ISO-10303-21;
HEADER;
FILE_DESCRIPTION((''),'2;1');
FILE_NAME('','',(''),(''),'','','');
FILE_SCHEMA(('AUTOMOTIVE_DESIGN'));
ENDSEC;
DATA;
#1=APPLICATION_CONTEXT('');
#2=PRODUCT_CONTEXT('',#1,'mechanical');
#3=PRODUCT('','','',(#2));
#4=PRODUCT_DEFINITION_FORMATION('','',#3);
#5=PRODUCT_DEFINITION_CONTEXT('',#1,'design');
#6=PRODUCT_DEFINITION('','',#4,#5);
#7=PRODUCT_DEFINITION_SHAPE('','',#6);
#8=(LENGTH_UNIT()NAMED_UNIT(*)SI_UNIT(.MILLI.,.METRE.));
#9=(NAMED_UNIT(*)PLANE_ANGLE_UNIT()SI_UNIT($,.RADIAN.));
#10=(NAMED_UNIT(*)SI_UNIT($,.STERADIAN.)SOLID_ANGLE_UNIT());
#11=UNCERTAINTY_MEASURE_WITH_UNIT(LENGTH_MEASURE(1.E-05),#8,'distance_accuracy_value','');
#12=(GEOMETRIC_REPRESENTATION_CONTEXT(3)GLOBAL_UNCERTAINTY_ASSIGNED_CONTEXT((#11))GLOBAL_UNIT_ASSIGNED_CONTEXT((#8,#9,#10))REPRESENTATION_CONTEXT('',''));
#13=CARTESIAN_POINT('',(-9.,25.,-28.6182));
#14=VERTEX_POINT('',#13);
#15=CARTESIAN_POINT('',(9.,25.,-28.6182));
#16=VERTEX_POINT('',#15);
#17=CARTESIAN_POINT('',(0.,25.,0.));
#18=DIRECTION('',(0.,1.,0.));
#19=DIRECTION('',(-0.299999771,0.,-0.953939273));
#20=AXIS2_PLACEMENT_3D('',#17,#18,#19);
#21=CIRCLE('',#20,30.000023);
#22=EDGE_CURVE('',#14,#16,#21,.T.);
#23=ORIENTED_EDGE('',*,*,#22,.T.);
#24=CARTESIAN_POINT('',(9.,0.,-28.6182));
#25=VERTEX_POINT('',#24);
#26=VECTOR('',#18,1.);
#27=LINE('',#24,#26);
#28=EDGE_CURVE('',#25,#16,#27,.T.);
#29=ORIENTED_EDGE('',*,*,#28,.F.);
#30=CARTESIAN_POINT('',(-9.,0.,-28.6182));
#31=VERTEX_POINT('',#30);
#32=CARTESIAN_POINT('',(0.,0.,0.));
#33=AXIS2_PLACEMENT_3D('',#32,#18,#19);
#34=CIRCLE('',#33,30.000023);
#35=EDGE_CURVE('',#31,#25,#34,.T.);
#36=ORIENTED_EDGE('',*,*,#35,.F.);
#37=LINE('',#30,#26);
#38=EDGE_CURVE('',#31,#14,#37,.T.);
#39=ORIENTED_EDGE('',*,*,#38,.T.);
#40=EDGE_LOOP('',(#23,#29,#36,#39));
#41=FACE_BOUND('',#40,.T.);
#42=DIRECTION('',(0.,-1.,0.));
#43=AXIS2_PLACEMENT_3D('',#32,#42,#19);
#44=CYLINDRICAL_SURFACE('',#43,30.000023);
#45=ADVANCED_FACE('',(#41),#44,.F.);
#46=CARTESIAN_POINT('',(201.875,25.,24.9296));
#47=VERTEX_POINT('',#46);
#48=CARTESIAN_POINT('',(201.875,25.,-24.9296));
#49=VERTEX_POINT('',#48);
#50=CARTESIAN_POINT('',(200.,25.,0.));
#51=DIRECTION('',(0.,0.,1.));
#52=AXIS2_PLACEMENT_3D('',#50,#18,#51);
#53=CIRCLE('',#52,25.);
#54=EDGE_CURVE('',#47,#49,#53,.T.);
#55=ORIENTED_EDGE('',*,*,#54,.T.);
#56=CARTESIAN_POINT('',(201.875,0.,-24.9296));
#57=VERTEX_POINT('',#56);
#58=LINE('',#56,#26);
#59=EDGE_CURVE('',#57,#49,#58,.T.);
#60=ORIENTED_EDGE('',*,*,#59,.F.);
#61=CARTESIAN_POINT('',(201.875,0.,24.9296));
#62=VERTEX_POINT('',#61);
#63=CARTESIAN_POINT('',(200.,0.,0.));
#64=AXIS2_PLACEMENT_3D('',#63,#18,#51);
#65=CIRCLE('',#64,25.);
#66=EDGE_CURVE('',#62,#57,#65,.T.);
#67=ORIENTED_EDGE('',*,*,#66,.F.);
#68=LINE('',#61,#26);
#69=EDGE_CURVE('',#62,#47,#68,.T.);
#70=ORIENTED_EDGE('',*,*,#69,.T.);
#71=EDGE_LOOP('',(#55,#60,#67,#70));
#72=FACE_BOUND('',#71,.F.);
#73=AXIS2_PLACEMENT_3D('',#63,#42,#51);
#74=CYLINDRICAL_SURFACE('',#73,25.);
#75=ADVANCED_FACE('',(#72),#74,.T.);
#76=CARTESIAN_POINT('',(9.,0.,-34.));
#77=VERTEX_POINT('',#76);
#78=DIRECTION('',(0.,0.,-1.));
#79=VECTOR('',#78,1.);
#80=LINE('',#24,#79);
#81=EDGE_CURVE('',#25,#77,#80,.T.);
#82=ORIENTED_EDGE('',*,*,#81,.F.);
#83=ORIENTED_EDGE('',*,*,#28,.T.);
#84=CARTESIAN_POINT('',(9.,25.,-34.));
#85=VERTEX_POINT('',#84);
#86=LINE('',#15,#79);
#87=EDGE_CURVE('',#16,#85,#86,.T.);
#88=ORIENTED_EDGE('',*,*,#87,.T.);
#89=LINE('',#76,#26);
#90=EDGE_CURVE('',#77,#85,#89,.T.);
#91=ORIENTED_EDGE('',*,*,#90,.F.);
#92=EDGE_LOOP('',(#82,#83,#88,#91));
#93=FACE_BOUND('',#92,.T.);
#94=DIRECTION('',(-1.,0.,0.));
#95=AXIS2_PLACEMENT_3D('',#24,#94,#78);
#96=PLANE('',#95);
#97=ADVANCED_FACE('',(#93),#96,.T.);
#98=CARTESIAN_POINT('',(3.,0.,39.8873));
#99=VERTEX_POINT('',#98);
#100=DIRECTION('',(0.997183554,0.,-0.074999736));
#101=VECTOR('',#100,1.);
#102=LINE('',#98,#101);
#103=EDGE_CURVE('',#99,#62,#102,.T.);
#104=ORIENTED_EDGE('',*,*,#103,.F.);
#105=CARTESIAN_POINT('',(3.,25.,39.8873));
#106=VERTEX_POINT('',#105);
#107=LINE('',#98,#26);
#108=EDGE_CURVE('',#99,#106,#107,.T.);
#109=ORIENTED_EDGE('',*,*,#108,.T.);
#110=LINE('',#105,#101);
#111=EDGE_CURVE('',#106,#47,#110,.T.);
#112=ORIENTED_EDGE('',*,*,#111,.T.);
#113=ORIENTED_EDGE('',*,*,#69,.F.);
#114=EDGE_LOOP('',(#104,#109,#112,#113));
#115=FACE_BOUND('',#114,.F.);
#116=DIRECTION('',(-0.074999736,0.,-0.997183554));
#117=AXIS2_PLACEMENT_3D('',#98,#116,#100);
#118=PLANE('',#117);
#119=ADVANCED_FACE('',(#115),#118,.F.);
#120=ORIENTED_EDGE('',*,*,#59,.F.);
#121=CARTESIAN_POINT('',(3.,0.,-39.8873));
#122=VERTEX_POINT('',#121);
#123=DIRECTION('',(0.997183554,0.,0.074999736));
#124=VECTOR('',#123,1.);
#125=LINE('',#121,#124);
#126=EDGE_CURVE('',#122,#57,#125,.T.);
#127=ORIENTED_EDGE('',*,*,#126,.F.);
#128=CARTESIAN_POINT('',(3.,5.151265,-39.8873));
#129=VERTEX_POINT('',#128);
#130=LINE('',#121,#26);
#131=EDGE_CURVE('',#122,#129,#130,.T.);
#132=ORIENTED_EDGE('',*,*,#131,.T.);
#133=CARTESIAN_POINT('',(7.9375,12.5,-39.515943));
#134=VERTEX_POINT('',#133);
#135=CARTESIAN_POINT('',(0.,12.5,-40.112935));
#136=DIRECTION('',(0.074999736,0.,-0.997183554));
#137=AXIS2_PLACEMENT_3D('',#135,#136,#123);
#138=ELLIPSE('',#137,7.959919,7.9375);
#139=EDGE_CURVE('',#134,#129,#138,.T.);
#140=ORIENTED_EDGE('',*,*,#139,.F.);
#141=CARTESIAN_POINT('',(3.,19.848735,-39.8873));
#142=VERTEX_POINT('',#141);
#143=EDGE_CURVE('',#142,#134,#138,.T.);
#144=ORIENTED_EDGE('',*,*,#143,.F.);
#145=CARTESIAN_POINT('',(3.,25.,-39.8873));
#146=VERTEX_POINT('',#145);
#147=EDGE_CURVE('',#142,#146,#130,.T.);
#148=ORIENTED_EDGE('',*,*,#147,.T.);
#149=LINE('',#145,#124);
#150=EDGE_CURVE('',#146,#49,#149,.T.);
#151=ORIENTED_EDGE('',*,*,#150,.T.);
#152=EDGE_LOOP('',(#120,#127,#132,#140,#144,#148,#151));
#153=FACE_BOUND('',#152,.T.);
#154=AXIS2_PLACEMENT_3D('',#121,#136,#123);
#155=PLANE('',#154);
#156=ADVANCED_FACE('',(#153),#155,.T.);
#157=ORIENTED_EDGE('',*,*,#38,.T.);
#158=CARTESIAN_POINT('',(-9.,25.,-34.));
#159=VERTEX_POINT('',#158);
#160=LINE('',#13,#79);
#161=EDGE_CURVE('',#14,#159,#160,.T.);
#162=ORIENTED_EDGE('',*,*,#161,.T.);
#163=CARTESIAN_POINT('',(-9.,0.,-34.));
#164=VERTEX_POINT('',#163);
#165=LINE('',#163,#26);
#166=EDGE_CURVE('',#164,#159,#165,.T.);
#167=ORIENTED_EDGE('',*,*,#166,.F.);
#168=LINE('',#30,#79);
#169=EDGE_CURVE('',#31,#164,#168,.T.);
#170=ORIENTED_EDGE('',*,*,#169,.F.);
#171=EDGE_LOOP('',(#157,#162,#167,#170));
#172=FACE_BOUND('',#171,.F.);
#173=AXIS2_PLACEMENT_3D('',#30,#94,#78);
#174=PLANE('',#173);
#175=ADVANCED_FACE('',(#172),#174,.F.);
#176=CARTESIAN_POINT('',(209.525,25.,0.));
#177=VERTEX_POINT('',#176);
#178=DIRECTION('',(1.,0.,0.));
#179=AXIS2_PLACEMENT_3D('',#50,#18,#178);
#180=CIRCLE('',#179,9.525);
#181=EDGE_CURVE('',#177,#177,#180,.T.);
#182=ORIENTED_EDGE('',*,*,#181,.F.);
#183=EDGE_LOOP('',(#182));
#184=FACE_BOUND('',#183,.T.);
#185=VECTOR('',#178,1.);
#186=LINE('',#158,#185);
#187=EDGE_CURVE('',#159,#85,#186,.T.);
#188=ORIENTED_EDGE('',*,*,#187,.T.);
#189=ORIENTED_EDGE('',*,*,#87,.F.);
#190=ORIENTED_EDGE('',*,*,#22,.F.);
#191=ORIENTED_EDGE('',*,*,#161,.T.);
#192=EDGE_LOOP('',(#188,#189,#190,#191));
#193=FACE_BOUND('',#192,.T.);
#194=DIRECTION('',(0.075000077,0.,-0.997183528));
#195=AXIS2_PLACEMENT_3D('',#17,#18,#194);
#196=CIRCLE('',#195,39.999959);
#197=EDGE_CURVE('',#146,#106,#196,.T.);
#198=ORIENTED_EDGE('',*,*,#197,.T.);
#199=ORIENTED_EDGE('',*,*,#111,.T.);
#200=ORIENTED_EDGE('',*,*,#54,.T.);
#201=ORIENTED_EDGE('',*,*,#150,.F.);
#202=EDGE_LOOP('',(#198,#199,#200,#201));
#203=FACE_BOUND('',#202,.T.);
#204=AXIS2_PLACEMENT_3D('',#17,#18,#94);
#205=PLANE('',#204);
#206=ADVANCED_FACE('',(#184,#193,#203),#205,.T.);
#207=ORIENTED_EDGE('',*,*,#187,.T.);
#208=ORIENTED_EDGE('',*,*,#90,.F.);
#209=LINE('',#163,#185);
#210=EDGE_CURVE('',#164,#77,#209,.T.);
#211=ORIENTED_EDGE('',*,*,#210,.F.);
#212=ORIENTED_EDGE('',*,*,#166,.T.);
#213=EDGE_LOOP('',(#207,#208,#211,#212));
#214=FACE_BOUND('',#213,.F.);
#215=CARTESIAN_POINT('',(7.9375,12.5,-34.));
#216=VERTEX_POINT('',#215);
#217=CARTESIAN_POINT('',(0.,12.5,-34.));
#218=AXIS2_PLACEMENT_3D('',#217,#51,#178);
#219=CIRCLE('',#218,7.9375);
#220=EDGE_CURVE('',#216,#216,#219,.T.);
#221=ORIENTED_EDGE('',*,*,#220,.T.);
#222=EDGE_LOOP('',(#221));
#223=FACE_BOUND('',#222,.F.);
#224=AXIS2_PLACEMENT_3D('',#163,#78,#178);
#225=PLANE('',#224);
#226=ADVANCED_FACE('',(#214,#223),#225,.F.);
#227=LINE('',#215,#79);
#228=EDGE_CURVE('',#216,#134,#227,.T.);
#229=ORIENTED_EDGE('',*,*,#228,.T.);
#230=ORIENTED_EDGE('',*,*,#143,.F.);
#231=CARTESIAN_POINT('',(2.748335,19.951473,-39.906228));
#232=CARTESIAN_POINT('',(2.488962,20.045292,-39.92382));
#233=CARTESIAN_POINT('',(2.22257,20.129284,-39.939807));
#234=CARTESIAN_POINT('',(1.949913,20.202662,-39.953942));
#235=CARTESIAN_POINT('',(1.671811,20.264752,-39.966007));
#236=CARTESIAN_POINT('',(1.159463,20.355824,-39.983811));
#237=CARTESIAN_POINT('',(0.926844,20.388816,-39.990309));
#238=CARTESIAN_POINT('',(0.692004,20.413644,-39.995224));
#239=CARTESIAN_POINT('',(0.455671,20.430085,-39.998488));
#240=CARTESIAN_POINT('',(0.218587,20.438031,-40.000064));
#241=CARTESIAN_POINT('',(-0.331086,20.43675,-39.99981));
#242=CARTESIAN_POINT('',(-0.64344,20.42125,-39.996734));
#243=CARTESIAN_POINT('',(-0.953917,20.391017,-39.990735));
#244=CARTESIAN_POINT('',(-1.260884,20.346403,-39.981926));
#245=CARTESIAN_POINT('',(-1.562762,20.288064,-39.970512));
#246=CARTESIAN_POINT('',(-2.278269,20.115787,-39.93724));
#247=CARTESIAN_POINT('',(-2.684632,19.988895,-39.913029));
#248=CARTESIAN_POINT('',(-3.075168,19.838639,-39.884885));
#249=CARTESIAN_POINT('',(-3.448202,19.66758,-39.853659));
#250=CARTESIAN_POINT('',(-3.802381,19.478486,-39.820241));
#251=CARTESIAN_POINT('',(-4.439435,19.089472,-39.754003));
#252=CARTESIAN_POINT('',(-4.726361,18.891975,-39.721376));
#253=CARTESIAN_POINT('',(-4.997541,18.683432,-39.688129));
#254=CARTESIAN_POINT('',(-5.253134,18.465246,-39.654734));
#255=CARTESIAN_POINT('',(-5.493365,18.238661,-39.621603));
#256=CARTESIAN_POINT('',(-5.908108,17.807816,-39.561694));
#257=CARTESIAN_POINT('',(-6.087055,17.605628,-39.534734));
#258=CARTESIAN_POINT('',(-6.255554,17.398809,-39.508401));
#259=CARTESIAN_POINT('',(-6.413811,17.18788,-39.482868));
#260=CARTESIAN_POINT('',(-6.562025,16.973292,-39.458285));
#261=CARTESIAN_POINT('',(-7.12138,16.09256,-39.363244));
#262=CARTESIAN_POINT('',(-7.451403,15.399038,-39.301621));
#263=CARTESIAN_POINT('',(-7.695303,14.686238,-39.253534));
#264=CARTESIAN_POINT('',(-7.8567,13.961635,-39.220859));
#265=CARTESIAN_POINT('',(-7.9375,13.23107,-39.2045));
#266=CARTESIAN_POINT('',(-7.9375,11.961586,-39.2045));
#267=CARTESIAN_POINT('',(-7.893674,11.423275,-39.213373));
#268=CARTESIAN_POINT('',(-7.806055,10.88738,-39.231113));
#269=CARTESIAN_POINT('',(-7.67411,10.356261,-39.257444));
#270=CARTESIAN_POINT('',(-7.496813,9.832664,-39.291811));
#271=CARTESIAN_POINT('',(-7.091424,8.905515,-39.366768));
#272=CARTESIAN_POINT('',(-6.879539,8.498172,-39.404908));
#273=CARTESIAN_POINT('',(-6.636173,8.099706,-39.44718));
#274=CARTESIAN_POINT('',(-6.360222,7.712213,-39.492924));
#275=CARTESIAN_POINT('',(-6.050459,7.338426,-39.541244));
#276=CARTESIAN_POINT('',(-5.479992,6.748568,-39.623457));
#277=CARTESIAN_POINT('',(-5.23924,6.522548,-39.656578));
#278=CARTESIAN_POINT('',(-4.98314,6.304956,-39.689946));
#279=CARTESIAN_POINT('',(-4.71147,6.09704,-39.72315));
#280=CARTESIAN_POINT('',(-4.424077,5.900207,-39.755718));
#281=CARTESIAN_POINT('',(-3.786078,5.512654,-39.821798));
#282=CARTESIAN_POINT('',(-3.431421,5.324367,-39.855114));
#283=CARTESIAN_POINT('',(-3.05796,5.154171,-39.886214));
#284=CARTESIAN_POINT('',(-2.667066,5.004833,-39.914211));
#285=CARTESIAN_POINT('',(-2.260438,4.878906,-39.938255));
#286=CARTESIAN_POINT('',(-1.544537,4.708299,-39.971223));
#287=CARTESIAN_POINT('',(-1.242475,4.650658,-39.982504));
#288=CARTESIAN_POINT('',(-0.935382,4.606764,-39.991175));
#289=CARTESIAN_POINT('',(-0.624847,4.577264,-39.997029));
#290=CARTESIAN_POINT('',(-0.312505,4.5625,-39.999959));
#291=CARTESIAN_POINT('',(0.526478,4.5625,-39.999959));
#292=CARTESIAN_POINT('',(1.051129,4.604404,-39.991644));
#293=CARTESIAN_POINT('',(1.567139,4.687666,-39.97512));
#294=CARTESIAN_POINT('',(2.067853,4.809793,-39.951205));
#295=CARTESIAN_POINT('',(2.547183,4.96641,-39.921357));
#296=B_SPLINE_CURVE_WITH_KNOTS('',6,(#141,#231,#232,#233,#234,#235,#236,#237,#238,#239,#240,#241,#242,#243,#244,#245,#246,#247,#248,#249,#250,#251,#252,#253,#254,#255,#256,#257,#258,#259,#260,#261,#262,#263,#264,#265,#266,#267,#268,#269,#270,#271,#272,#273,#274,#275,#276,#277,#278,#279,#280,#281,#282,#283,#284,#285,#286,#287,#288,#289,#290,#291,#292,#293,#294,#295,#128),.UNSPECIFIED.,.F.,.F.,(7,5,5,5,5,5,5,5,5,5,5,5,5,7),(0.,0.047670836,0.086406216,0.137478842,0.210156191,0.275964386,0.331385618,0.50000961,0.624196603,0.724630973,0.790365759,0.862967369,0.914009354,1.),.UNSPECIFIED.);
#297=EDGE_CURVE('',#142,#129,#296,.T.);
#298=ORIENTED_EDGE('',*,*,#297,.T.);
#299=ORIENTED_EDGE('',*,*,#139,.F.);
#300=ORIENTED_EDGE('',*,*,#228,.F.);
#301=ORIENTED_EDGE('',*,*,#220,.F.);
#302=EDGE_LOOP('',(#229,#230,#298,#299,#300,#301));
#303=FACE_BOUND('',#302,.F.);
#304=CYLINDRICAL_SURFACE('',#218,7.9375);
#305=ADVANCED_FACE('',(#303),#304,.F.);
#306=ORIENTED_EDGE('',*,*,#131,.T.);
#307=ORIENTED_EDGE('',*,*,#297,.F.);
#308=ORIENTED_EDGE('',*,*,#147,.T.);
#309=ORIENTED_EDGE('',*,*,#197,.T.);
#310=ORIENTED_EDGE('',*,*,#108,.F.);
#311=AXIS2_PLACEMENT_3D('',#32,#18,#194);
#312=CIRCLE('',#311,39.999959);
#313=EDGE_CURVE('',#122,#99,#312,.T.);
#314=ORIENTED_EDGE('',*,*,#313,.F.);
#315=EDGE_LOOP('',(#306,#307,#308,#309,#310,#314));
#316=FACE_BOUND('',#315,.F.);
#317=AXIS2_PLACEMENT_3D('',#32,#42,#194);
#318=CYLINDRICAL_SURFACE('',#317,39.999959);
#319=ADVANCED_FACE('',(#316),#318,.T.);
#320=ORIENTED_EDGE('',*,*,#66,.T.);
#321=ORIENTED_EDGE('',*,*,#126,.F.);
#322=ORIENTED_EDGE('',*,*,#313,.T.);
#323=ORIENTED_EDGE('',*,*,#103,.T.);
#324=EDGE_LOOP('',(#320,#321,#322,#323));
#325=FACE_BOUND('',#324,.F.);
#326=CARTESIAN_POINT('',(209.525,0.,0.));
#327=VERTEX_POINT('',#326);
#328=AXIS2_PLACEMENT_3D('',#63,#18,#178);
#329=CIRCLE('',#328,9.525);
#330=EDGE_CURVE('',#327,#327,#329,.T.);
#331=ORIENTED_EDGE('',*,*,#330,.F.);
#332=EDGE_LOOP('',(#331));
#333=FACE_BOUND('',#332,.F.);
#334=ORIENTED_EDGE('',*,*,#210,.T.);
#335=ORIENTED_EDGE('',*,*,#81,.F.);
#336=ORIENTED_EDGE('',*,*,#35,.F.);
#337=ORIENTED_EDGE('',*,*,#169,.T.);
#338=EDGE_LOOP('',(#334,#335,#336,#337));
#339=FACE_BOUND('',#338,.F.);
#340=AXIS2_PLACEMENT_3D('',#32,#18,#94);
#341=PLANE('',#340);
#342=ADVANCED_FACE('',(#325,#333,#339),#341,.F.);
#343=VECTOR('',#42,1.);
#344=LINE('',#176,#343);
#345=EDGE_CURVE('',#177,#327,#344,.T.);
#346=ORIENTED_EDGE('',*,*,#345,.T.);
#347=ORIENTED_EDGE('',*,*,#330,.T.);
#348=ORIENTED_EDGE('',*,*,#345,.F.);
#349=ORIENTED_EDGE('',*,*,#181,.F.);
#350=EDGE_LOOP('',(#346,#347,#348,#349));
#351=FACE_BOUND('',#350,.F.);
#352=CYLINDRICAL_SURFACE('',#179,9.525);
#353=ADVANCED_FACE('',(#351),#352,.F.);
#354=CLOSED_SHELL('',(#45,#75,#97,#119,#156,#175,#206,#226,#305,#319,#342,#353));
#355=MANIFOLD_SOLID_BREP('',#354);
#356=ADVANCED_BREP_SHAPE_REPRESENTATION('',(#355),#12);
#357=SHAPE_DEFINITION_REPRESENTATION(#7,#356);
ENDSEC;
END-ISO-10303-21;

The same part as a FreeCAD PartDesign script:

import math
import FreeCAD as App
import Part
import Sketcher

V = App.Vector

doc = App.newDocument("Part")
body = doc.addObject("PartDesign::Body", "Body")

# Sketch on XZ plane
sketch1 = doc.addObject("Sketcher::SketchObject", "Sketch")
body.addObject(sketch1)
sketch1.AttachmentSupport = (doc.XZ_Plane, [""])
sketch1.MapMode = "FlatFace"
sketch1.addGeometry([
    Part.LineSegment(V(202, -25, 0), V(3, -40, 0)),  # 0
    Part.ArcOfCircle(Part.Circle(V(0, 0, 0), V(0, 0, 1), 40), math.radians(86), math.radians(274)),  # 1
    Part.LineSegment(V(3, 40, 0), V(202, 25, 0)),  # 2
    Part.ArcOfCircle(Part.Circle(V(200, 0, 0), V(0, 0, 1), 25), math.radians(-86), math.radians(86)),  # 3
    Part.ArcOfCircle(Part.Circle(V(0, 0, 0), V(0, 0, 1), 30), math.radians(-73), math.radians(253)),  # 4
    Part.LineSegment(V(-9, -29, 0), V(-9, -34, 0)),  # 5
    Part.LineSegment(V(-9, -34, 0), V(9, -34, 0)),  # 6
    Part.LineSegment(V(9, -34, 0), V(9, -29, 0)),  # 7
], False)
sketch1.addConstraint([
    Sketcher.Constraint("Tangent", 0, 2, 1, 2),
    Sketcher.Constraint("Tangent", 1, 1, 2, 1),
    Sketcher.Constraint("Tangent", 2, 2, 3, 2),
    Sketcher.Constraint("Tangent", 3, 1, 0, 1),
    Sketcher.Constraint("Coincident", 4, 2, 5, 1),
    Sketcher.Constraint("Coincident", 5, 2, 6, 1),
    Sketcher.Constraint("Coincident", 6, 2, 7, 1),
    Sketcher.Constraint("Coincident", 7, 2, 4, 1),
    Sketcher.Constraint("Vertical", 5),
    Sketcher.Constraint("Horizontal", 6),
    Sketcher.Constraint("Vertical", 7),
    Sketcher.Constraint("Coincident", 1, 3, -1, 1),
    Sketcher.Constraint("Coincident", 4, 3, -1, 1),
    Sketcher.Constraint("PointOnObject", 3, 3, -1),
    Sketcher.Constraint("Horizontal", 4, 2, 7, 2),
    Sketcher.Constraint("Radius", 1, 40.0),
    Sketcher.Constraint("Radius", 3, 25.0),
    Sketcher.Constraint("Radius", 4, 30.0),
    Sketcher.Constraint("DistanceX", 6, 1, 6, 2, 18.0),
    Sketcher.Constraint("DistanceX", -1, 1, 3, 3, 200.0),
    Sketcher.Constraint("DistanceY", 5, 2, -1, 1, 34.0),
])
pad1 = doc.addObject("PartDesign::Pad", "Pad")
body.addObject(pad1)
pad1.Profile = sketch1
pad1.Length = 25
pad1.Reversed = True

# Sketch on XZ plane
sketch2 = doc.addObject("Sketcher::SketchObject", "Sketch001")
body.addObject(sketch2)
sketch2.AttachmentSupport = (doc.XZ_Plane, [""])
sketch2.MapMode = "FlatFace"
sketch2.AttachmentOffset = App.Placement(V(0, 0, -25), App.Rotation())
sketch2.addGeometry(Part.Circle(V(200, 0, 0), V(0, 0, 1), 10), False)
sketch2.addConstraint([
    Sketcher.Constraint("PointOnObject", 0, 3, -1),
    Sketcher.Constraint("Diameter", 0, 19.05),
    Sketcher.Constraint("DistanceX", -1, 1, 0, 3, 200.0),
])
pocket1 = doc.addObject("PartDesign::Pocket", "Pocket")
body.addObject(pocket1)
pocket1.Profile = sketch2
pocket1.Type = "ThroughAll"
pocket1.Reversed = True

# Sketch on XY plane
sketch3 = doc.addObject("Sketcher::SketchObject", "Sketch002")
body.addObject(sketch3)
sketch3.AttachmentSupport = (doc.XY_Plane, [""])
sketch3.MapMode = "FlatFace"
sketch3.AttachmentOffset = App.Placement(V(0, 0, -34), App.Rotation())
sketch3.addGeometry(Part.Circle(V(0, 12, 0), V(0, 0, 1), 8), False)
sketch3.addConstraint([
    Sketcher.Constraint("PointOnObject", 0, 3, -2),
    Sketcher.Constraint("Diameter", 0, 15.875),
    Sketcher.Constraint("DistanceY", -1, 1, 0, 3, 12.5),
])
pocket2 = doc.addObject("PartDesign::Pocket", "Pocket001")
body.addObject(pocket2)
pocket2.Profile = sketch3
pocket2.Length = 10

doc.recompute()
